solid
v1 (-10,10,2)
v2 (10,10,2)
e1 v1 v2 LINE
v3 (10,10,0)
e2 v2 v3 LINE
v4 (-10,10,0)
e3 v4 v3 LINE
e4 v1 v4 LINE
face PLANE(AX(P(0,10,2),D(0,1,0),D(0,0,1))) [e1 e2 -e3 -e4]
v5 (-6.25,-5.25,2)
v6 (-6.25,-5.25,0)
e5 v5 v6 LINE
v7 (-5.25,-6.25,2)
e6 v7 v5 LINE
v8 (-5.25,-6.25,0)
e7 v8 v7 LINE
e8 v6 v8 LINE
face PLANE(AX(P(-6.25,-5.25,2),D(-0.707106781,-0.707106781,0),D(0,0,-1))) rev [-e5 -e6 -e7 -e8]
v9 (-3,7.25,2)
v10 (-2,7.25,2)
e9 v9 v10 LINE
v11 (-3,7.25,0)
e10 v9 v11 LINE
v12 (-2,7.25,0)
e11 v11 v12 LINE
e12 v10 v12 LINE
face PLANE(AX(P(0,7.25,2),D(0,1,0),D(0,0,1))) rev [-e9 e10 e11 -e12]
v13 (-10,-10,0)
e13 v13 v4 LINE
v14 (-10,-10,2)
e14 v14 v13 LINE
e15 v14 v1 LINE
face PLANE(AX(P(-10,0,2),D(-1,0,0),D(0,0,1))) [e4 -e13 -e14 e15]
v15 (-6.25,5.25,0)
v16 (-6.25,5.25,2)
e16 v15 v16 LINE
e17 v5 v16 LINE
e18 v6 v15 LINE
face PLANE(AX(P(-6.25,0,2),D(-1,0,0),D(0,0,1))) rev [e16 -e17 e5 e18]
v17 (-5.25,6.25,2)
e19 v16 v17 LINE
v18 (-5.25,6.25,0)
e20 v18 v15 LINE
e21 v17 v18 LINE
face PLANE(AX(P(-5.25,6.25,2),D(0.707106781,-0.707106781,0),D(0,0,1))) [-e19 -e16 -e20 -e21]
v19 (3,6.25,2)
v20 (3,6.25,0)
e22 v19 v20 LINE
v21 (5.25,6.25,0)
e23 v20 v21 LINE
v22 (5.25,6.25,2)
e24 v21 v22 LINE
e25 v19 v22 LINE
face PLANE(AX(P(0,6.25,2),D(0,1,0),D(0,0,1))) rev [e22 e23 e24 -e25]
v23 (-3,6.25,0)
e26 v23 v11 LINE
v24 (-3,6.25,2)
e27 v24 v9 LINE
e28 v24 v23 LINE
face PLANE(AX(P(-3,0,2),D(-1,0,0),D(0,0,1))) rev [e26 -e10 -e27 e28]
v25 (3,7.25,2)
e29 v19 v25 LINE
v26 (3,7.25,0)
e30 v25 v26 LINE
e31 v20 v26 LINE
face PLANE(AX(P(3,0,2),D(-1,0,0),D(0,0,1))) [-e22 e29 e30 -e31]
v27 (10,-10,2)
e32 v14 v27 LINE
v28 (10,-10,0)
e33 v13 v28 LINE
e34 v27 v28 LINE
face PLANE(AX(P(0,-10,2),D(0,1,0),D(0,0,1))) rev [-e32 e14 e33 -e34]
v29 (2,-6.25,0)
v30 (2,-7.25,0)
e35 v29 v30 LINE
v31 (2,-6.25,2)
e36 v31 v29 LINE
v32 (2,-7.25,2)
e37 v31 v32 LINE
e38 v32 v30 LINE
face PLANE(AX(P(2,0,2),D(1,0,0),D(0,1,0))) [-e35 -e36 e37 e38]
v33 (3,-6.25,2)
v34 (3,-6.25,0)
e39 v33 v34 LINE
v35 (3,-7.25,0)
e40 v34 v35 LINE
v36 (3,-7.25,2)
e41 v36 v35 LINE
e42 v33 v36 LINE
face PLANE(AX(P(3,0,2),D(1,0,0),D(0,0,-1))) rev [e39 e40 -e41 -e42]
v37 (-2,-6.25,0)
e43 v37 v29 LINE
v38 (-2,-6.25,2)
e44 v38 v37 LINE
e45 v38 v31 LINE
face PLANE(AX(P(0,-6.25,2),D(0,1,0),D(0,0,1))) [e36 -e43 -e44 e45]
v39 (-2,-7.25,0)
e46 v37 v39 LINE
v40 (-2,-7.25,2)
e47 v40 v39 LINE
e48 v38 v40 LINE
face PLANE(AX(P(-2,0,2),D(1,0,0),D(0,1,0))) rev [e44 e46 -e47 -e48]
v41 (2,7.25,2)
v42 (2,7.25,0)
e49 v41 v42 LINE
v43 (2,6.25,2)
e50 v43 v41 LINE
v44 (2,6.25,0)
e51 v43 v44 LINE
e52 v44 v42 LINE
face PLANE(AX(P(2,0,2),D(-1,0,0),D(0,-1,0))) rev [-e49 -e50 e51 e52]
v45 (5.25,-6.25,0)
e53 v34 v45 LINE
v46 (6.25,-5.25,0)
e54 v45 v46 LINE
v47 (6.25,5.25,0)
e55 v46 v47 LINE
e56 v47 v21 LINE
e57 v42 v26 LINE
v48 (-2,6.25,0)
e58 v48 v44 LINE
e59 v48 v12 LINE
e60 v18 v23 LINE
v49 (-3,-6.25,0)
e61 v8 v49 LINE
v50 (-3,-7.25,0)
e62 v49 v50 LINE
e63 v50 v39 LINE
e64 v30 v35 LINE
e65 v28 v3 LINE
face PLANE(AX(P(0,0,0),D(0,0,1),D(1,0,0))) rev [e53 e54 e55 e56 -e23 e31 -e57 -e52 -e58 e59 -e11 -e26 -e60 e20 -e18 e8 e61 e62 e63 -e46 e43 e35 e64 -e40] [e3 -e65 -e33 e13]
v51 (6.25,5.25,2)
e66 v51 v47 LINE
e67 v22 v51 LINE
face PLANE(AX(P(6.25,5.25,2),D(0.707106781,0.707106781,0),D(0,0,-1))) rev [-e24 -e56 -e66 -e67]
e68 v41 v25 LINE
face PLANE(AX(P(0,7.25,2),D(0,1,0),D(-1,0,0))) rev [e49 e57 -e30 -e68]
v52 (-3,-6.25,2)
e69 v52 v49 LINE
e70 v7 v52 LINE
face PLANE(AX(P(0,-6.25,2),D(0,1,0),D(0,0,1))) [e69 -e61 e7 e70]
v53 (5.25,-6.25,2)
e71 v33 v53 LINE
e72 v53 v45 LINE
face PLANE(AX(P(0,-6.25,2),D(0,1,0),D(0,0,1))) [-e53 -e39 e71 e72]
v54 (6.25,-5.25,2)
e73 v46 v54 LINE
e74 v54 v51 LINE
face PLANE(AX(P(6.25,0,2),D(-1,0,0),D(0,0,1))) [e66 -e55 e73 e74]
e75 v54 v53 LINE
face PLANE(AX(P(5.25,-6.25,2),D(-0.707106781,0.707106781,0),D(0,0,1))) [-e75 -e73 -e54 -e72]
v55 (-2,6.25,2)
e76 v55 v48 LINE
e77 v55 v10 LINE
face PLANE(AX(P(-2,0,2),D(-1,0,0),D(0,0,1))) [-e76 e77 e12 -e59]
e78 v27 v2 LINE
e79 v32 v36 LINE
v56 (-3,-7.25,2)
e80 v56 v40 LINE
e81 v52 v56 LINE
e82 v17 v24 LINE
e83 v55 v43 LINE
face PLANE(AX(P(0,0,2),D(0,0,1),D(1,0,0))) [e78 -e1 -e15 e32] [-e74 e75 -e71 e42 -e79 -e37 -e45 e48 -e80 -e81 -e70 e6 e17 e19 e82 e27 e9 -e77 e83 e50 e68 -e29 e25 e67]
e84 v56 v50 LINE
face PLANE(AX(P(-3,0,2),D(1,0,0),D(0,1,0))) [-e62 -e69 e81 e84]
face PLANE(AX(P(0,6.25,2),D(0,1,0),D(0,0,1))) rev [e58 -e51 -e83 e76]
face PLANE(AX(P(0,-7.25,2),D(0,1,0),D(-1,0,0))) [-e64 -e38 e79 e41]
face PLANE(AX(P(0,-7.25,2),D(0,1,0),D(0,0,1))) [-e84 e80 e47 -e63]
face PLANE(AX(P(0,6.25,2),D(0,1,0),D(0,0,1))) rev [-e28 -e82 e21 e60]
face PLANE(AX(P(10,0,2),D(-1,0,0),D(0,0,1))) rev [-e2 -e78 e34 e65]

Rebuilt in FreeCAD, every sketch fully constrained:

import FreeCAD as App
import Part
import Sketcher


def edges_at(feature, points):
    """Names of the edges that pass closest to the given points."""
    edges = feature.Shape.Edges
    near = lambda p: min(range(len(edges)), key=lambda i: edges[i].distToShape(Part.Vertex(*p))[0])
    return sorted({f"Edge{near(p) + 1}" for p in points})


def add_polygon(sketch, points):
    """Adds a closed chain of lines whose ends are joined by coincident constraints."""
    first, n = sketch.GeometryCount, len(points)
    for a, b in zip(points, points[1:] + points[:1]):
        sketch.addGeometry(Part.LineSegment(App.Vector(*a, 0), App.Vector(*b, 0)), False)
    for i in range(n):
        sketch.addConstraint(Sketcher.Constraint("Coincident", first + i, 2, first + (i + 1) % n, 1))

doc = App.newDocument("Part")
params = doc.addObject("Spreadsheet::Sheet", "Params")
for row, (alias, value) in enumerate([
    ("sketch1_width", "20 mm"),
    ("sketch1_width2", "1 mm"),
    ("sketch1_width3", "4 mm"),
    ("sketch1_height", "12.5 mm"),
    ("sketch1_width4", "3.25 mm"),
    ("pad1_length", "2 mm"),
    ("chamfer_size", "1 mm"),
], start=1):
    params.set(f"A{row}", alias)
    params.set(f"B{row}", "=" + value)
    params.setAlias(f"B{row}", alias)

body = doc.addObject("PartDesign::Body", "Body")

sketch1 = body.newObject("Sketcher::SketchObject", "Sketch")
sketch1.AttachmentSupport = (doc.getObject("XY_Plane"), [""])
sketch1.MapMode = "FlatFace"
add_polygon(sketch1, [(-10, 10), (-10, -10), (10, -10), (10, 10)])
add_polygon(sketch1, [(-3, -7.2), (-3, -6.2), (-6.2, -6.2), (-6.2, 6.2), (-3, 6.2), (-3, 7.2), (-2, 7.2), (-2, 6.2), (2, 6.2), (2, 7.2), (3, 7.2), (3, 6.2), (6.2, 6.2), (6.2, -6.2), (3, -6.2), (3, -7.2), (2, -7.2), (2, -6.2), (-2, -6.2), (-2, -7.2)])
sketch1.addConstraint(Sketcher.Constraint("Vertical", 0))
sketch1.addConstraint(Sketcher.Constraint("Horizontal", 1))
sketch1.addConstraint(Sketcher.Constraint("Vertical", 2))
sketch1.addConstraint(Sketcher.Constraint("Horizontal", 3))
sketch1.addConstraint(Sketcher.Constraint("Vertical", 4))
sketch1.addConstraint(Sketcher.Constraint("Horizontal", 5))
sketch1.addConstraint(Sketcher.Constraint("Vertical", 6))
sketch1.addConstraint(Sketcher.Constraint("Horizontal", 7))
sketch1.addConstraint(Sketcher.Constraint("Vertical", 8))
sketch1.addConstraint(Sketcher.Constraint("Horizontal", 9))
sketch1.addConstraint(Sketcher.Constraint("Vertical", 10))
sketch1.addConstraint(Sketcher.Constraint("Horizontal", 11))
sketch1.addConstraint(Sketcher.Constraint("Vertical", 12))
sketch1.addConstraint(Sketcher.Constraint("Horizontal", 13))
sketch1.addConstraint(Sketcher.Constraint("Vertical", 14))
sketch1.addConstraint(Sketcher.Constraint("Horizontal", 15))
sketch1.addConstraint(Sketcher.Constraint("Vertical", 16))
sketch1.addConstraint(Sketcher.Constraint("Horizontal", 17))
sketch1.addConstraint(Sketcher.Constraint("Vertical", 18))
sketch1.addConstraint(Sketcher.Constraint("Horizontal", 19))
sketch1.addConstraint(Sketcher.Constraint("Vertical", 20))
sketch1.addConstraint(Sketcher.Constraint("Horizontal", 21))
sketch1.addConstraint(Sketcher.Constraint("Vertical", 22))
sketch1.addConstraint(Sketcher.Constraint("Horizontal", 23))
sketch1.addConstraint(Sketcher.Constraint("Symmetric", 0, 2, 2, 2, -1, 1))
sketch1.addConstraint(Sketcher.Constraint("Symmetric", 4, 2, 14, 2, -1, 1))
sketch1.addConstraint(Sketcher.Constraint("Symmetric", 6, 2, 16, 2, -1, 1))
sketch1.addConstraint(Sketcher.Constraint("Symmetric", 8, 2, 18, 2, -1, 1))
sketch1.addConstraint(Sketcher.Constraint("Symmetric", 10, 2, 20, 2, -1, 1))
sketch1.addConstraint(Sketcher.Constraint("Symmetric", 12, 2, 22, 2, -1, 1))
sketch1.addConstraint(Sketcher.Constraint("Symmetric", 9, 2, 12, 2, -2))
sketch1.addConstraint(Sketcher.Constraint("Symmetric", 7, 2, 14, 2, -2))
sketch1.addConstraint(Sketcher.Constraint("Horizontal", 7, 2, 10, 2))
sketch1.addConstraint(Sketcher.Constraint("Equal", 3, 0))
sketch1.addConstraint(Sketcher.Constraint("Equal", 23, 4))
sketch1.addConstraint(Sketcher.Constraint("DistanceX", 1, 1, 1, 2, 20.0))
sketch1.addConstraint(Sketcher.Constraint("DistanceX", 9, 1, 9, 2, 1.0))
sketch1.addConstraint(Sketcher.Constraint("DistanceX", 11, 1, 11, 2, 4.0))
sketch1.addConstraint(Sketcher.Constraint("DistanceY", 6, 1, 6, 2, 12.5))
sketch1.addConstraint(Sketcher.Constraint("DistanceX", 5, 2, 5, 1, 3.25))
sketch1.setExpression("Constraints[59]", "Params.sketch1_width")
sketch1.setExpression("Constraints[60]", "Params.sketch1_width2")
sketch1.setExpression("Constraints[61]", "Params.sketch1_width3")
sketch1.setExpression("Constraints[62]", "Params.sketch1_height")
sketch1.setExpression("Constraints[63]", "Params.sketch1_width4")
pad1 = body.newObject("PartDesign::Pad", "Pad")
pad1.Profile = sketch1
pad1.setExpression("Length", "Params.pad1_length")
doc.recompute()

chamfer = body.newObject("PartDesign::Chamfer", "Chamfer")
chamfer.Base = (pad1, edges_at(pad1, [
    (6.25, -6.25, 1),
    (6.25, 6.25, 1),
    (-6.25, 6.25, 1),
    (-6.25, -6.25, 1),
]))
chamfer.setExpression("Size", "Params.chamfer_size")

doc.recompute()
